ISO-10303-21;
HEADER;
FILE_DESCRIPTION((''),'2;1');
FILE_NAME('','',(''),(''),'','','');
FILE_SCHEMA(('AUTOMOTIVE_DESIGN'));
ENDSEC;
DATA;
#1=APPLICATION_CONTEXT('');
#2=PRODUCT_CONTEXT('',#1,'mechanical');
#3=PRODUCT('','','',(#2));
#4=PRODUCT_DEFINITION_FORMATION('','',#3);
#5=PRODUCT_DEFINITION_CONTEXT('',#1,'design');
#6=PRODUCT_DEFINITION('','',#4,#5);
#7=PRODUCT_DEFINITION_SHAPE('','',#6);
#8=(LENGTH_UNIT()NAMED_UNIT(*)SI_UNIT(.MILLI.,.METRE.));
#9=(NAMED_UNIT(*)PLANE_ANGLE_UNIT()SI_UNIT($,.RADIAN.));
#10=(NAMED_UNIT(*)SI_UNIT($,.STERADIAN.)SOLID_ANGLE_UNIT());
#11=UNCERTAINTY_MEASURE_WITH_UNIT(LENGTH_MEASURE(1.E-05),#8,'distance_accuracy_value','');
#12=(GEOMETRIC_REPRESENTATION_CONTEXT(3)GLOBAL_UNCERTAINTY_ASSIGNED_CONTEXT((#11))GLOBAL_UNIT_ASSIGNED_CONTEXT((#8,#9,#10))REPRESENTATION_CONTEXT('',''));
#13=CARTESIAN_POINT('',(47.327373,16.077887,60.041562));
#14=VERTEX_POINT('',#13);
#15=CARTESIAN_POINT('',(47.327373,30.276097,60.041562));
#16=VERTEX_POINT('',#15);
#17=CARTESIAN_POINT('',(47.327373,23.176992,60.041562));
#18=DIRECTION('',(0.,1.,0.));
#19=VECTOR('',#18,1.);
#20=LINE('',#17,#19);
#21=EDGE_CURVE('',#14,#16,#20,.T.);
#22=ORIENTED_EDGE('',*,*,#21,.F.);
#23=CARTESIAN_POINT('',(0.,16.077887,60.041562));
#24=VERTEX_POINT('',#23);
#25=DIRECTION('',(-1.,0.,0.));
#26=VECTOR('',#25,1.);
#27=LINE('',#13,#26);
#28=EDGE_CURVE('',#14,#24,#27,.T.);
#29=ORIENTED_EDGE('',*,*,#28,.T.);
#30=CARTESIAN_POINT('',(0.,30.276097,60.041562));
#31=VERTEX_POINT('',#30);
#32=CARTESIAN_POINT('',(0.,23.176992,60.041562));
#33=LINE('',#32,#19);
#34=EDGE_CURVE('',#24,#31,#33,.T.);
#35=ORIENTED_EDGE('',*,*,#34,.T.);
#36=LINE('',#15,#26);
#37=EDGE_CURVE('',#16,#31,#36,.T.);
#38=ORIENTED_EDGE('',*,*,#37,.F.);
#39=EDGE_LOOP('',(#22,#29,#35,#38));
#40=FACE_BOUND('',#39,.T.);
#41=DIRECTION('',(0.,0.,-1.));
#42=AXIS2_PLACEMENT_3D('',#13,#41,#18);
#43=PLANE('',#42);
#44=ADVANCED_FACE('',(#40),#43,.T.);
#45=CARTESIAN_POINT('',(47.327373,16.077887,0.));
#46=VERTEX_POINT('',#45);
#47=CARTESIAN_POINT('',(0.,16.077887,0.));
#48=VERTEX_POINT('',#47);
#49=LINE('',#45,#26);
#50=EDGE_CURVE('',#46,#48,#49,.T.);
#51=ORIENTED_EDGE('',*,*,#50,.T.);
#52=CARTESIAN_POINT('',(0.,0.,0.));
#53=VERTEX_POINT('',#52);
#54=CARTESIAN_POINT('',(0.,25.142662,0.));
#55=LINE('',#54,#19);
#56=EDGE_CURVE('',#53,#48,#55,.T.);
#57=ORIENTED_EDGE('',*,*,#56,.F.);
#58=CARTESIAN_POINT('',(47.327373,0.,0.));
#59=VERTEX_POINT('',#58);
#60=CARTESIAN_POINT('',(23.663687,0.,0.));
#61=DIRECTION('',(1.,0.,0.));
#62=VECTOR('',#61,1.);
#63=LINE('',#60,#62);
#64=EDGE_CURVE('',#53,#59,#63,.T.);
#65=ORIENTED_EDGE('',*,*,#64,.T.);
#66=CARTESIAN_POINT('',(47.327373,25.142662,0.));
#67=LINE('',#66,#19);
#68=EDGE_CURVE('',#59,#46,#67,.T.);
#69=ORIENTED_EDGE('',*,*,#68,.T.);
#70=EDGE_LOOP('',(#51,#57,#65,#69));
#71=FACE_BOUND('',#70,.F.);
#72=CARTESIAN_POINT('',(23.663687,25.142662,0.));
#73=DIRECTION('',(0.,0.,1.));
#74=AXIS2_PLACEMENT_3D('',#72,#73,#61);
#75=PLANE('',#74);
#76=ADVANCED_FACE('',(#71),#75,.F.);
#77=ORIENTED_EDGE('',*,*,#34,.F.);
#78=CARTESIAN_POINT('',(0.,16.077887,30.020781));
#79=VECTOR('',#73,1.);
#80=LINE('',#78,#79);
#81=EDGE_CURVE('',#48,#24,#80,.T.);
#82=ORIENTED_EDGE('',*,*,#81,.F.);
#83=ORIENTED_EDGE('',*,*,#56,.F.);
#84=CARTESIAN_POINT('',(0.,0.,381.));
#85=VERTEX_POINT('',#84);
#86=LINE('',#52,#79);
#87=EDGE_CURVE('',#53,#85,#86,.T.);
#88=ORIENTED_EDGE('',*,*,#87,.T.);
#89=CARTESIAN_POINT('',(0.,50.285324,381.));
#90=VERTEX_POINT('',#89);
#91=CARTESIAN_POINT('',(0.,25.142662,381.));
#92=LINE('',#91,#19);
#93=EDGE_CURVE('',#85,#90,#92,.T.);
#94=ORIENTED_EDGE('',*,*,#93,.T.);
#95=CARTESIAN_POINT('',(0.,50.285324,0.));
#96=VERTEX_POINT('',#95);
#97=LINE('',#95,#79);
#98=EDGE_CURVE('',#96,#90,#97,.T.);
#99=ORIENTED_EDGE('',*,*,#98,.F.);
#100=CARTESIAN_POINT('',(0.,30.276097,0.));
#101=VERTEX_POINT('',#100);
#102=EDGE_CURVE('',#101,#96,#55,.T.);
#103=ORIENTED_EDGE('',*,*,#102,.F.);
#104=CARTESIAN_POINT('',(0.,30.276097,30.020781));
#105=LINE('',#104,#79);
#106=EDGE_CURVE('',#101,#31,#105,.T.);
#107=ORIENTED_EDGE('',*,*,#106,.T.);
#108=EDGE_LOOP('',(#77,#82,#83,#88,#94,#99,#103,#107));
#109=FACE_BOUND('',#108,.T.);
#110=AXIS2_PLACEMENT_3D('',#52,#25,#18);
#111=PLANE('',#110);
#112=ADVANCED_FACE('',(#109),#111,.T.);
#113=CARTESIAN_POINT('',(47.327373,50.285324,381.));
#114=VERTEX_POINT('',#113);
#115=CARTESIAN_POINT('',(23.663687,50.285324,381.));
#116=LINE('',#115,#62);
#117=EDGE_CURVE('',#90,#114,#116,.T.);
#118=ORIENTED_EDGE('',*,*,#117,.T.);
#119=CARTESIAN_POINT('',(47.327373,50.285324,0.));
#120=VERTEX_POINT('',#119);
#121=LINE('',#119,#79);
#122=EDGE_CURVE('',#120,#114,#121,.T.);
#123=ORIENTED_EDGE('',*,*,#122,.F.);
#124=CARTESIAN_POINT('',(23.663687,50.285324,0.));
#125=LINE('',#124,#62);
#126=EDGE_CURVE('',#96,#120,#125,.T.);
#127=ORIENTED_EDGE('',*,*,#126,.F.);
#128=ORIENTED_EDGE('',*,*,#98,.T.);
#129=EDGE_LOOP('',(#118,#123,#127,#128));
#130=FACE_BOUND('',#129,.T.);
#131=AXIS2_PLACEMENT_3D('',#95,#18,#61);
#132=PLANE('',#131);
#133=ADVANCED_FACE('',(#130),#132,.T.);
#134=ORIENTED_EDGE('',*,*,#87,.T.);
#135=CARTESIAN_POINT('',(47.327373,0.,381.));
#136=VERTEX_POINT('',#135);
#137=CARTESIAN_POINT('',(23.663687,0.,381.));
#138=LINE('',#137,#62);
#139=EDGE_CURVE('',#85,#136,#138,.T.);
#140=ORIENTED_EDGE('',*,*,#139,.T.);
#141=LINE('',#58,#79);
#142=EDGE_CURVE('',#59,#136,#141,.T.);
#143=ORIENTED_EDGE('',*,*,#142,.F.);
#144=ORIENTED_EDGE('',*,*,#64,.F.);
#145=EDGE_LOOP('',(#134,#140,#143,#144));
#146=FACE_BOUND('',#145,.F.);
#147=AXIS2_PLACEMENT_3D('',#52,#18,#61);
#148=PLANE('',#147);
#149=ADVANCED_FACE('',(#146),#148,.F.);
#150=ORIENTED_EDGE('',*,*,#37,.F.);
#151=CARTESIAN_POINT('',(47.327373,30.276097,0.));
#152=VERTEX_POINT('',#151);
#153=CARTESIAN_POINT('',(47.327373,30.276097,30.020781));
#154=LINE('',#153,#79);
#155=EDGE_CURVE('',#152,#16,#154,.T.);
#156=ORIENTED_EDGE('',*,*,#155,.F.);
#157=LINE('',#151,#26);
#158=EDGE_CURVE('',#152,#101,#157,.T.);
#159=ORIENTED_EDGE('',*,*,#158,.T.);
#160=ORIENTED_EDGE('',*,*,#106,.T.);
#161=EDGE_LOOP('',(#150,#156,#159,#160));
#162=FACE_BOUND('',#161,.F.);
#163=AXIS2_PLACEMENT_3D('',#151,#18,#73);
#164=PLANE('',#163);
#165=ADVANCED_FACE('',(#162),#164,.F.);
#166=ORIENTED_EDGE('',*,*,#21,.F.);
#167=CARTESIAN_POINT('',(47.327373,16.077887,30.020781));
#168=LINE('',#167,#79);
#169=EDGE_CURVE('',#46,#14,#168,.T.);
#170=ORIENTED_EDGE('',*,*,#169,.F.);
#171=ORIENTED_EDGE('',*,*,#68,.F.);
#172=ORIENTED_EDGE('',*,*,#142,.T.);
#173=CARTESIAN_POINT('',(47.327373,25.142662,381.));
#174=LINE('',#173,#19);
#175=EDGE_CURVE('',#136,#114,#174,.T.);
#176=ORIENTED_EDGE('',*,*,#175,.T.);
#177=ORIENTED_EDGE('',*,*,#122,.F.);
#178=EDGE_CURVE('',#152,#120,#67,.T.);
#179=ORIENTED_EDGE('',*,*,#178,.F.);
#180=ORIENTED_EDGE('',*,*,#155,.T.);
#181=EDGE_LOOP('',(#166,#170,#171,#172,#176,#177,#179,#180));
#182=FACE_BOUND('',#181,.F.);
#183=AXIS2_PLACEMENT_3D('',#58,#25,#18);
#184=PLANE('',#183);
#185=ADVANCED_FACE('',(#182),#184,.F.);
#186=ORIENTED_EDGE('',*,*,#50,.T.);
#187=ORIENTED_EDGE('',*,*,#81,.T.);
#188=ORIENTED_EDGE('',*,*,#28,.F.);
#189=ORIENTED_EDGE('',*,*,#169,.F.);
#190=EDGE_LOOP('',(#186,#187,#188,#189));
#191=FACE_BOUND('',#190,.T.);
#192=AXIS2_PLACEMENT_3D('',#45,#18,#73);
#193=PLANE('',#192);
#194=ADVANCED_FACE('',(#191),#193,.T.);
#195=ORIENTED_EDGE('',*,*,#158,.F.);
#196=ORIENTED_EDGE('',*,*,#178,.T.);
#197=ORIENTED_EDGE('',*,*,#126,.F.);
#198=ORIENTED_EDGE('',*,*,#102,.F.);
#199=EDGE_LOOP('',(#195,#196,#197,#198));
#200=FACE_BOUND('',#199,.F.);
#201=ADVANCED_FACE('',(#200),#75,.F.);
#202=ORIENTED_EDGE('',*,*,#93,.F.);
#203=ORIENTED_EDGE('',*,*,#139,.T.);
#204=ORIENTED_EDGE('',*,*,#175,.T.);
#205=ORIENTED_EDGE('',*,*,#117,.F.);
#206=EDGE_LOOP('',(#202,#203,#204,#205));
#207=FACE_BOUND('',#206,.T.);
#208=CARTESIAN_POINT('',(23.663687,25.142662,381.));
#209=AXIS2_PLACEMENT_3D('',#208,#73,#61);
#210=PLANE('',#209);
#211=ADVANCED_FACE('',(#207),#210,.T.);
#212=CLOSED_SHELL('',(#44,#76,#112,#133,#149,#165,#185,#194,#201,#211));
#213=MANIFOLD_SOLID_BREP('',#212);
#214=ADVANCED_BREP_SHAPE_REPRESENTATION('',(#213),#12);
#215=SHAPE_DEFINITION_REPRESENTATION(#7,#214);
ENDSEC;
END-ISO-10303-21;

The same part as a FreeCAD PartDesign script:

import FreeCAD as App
import Part
import Sketcher

V = App.Vector
Q = App.Units.Quantity


def add_polygon(sketch, points):
    """Adds a closed chain of lines whose ends are joined by coincident constraints."""
    first, n = sketch.GeometryCount, len(points)
    for a, b in zip(points, points[1:] + points[:1]):
        sketch.addGeometry(Part.LineSegment(App.Vector(*a, 0), App.Vector(*b, 0)), False)
    for i in range(n):
        sketch.addConstraint(Sketcher.Constraint("Coincident", first + i, 2, first + (i + 1) % n, 1))

doc = App.newDocument("Part")
body = doc.addObject("PartDesign::Body", "Body")

sketch1 = doc.addObject("Sketcher::SketchObject", "Sketch")
body.addObject(sketch1)
sketch1.AttachmentSupport = (doc.XY_Plane, [""])
sketch1.MapMode = "FlatFace"
add_polygon(sketch1, [(0, 50), (0, 0), (47, 0), (47, 50)])
sketch1.addConstraint([
    Sketcher.Constraint("Vertical", 0),
    Sketcher.Constraint("Horizontal", 1),
    Sketcher.Constraint("Vertical", 2),
    Sketcher.Constraint("Horizontal", 3),
    Sketcher.Constraint("Coincident", 0, 2, -1, 1),
    Sketcher.Constraint("DistanceX", 1, 1, 1, 2, 47.327373),
    Sketcher.Constraint("DistanceY", 0, 2, 0, 1, 50.285324),
])
pad1 = doc.addObject("PartDesign::Pad", "Pad")
body.addObject(pad1)
pad1.Profile = sketch1
pad1.Length = Q("15 in")

sketch2 = doc.addObject("Sketcher::SketchObject", "Sketch001")
body.addObject(sketch2)
sketch2.AttachmentSupport = (doc.YZ_Plane, [""])
sketch2.MapMode = "FlatFace"
sketch2.AttachmentOffset = App.Placement(V(0, 0, 47.327373), App.Rotation())
add_polygon(sketch2, [(16, 60), (16, 0), (30, 0), (30, 60)])
sketch2.addConstraint([
    Sketcher.Constraint("Vertical", 0),
    Sketcher.Constraint("Horizontal", 1),
    Sketcher.Constraint("Vertical", 2),
    Sketcher.Constraint("Horizontal", 3),
    Sketcher.Constraint("PointOnObject", 0, 2, -1),
    Sketcher.Constraint("DistanceX", 1, 1, 1, 2, 14.19821),
    Sketcher.Constraint("DistanceY", 0, 2, 0, 1, 60.041562),
    Sketcher.Constraint("DistanceX", -1, 1, 0, 2, 16.077887),
])
pocket1 = doc.addObject("PartDesign::Pocket", "Pocket")
body.addObject(pocket1)
pocket1.Profile = sketch2
pocket1.Type = "ThroughAll"

doc.recompute()
